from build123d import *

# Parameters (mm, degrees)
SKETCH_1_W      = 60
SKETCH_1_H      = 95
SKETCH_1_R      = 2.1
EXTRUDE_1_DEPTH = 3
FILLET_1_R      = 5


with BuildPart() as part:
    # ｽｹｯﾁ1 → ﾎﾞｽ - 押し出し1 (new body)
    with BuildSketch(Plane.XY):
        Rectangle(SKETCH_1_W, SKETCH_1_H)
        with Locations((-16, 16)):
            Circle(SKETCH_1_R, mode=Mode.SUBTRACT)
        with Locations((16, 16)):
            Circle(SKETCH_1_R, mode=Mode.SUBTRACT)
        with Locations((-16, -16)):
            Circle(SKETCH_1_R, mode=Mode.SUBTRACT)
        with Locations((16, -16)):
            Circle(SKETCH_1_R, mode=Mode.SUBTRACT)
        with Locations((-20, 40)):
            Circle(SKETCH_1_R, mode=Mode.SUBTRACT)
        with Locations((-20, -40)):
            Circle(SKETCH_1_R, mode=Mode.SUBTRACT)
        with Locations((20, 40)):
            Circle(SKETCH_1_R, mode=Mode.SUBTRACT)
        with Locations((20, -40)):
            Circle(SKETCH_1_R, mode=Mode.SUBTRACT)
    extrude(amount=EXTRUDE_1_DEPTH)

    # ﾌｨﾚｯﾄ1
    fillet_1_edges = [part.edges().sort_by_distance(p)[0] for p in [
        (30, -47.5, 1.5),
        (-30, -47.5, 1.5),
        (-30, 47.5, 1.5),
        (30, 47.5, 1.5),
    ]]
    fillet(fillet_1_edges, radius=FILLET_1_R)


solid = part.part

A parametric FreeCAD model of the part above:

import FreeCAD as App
import Part
import Sketcher
from FreeCAD import Vector


def edges_at(feature, points):
    """Names of the edges that pass closest to the given points."""
    edges = feature.Shape.Edges
    near = lambda p: min(range(len(edges)), key=lambda i: edges[i].distToShape(Part.Vertex(*p))[0])
    return sorted({f"Edge{near(p) + 1}" for p in points})


def add_polygon(sketch, points):
    """Adds a closed chain of lines whose ends are joined by coincident constraints."""
    first, n = sketch.GeometryCount, len(points)
    for a, b in zip(points, points[1:] + points[:1]):
        sketch.addGeometry(Part.LineSegment(App.Vector(*a, 0), App.Vector(*b, 0)), False)
    for i in range(n):
        sketch.addConstraint(Sketcher.Constraint("Coincident", first + i, 2, first + (i + 1) % n, 1))

doc = App.newDocument("Part")
body = doc.addObject("PartDesign::Body", "Body")

# Sketch on XY plane
sketch1 = doc.addObject("Sketcher::SketchObject", "Sketch")
body.addObject(sketch1)
sketch1.AttachmentSupport = (doc.XY_Plane, [""])
sketch1.MapMode = "FlatFace"
add_polygon(sketch1, [(-30, 47.5), (-30, -47.5), (30, -47.5), (30, 47.5)])  # lines 0-3
sketch1.addGeometry(Part.Circle(Vector(-20, -40, 0), Vector(0, 0, 1), 2.1), False)  # 4
sketch1.addGeometry(Part.Circle(Vector(-16, -16, 0), Vector(0, 0, 1), 2.1), False)  # 5
sketch1.addGeometry(Part.Circle(Vector(20, -40, 0), Vector(0, 0, 1), 2.1), False)  # 6
sketch1.addGeometry(Part.Circle(Vector(16, -16, 0), Vector(0, 0, 1), 2.1), False)  # 7
sketch1.addGeometry(Part.Circle(Vector(-16, 16, 0), Vector(0, 0, 1), 2.1), False)  # 8
sketch1.addGeometry(Part.Circle(Vector(-20, 40, 0), Vector(0, 0, 1), 2.1), False)  # 9
sketch1.addGeometry(Part.Circle(Vector(16, 16, 0), Vector(0, 0, 1), 2.1), False)  # 10
sketch1.addGeometry(Part.Circle(Vector(20, 40, 0), Vector(0, 0, 1), 2.1), False)  # 11
sketch1.addConstraint(Sketcher.Constraint("Vertical", 0))
sketch1.addConstraint(Sketcher.Constraint("Horizontal", 1))
sketch1.addConstraint(Sketcher.Constraint("Vertical", 2))
sketch1.addConstraint(Sketcher.Constraint("Horizontal", 3))
sketch1.addConstraint(Sketcher.Constraint("Equal", 4, 5))
sketch1.addConstraint(Sketcher.Constraint("Equal", 5, 6))
sketch1.addConstraint(Sketcher.Constraint("Equal", 6, 7))
sketch1.addConstraint(Sketcher.Constraint("Equal", 7, 8))
sketch1.addConstraint(Sketcher.Constraint("Equal", 8, 9))
sketch1.addConstraint(Sketcher.Constraint("Equal", 9, 10))
sketch1.addConstraint(Sketcher.Constraint("Equal", 10, 11))
sketch1.addConstraint(Sketcher.Constraint("Symmetric", 7, 3, 8, 3, -1, 1))
sketch1.addConstraint(Sketcher.Constraint("Symmetric", 6, 3, 9, 3, -1, 1))
sketch1.addConstraint(Sketcher.Constraint("Symmetric", 5, 3, 10, 3, -1, 1))
sketch1.addConstraint(Sketcher.Constraint("Symmetric", 4, 3, 11, 3, -1, 1))
sketch1.addConstraint(Sketcher.Constraint("Symmetric", 0, 2, 2, 2, -1, 1))
sketch1.addConstraint(Sketcher.Constraint("Symmetric", 4, 3, 6, 3, -2))
sketch1.addConstraint(Sketcher.Constraint("Symmetric", 5, 3, 7, 3, -2))
sketch1.addConstraint(Sketcher.Constraint("Diameter", 4, 4.2))
sketch1.addConstraint(Sketcher.Constraint("DistanceX", 1, 1, 1, 2, 60.0))
sketch1.addConstraint(Sketcher.Constraint("DistanceY", 0, 2, 0, 1, 95.0))
sketch1.addConstraint(Sketcher.Constraint("DistanceX", 4, 3, -1, 1, 20.0))
sketch1.addConstraint(Sketcher.Constraint("DistanceY", 4, 3, -1, 1, 40.0))
sketch1.addConstraint(Sketcher.Constraint("DistanceX", 5, 3, -1, 1, 16.0))
sketch1.addConstraint(Sketcher.Constraint("DistanceY", 5, 3, -1, 1, 16.0))
pad1 = doc.addObject("PartDesign::Pad", "Pad")
body.addObject(pad1)
pad1.Profile = sketch1
pad1.Length = 3
doc.recompute()

fillet = doc.addObject("PartDesign::Fillet", "Fillet")
body.addObject(fillet)
fillet.Base = (pad1, edges_at(pad1, [
    (30, -47.5, 1.5),
    (-30, -47.5, 1.5),
    (-30, 47.5, 1.5),
    (30, 47.5, 1.5),
]))
fillet.Radius = 5

doc.recompute()
